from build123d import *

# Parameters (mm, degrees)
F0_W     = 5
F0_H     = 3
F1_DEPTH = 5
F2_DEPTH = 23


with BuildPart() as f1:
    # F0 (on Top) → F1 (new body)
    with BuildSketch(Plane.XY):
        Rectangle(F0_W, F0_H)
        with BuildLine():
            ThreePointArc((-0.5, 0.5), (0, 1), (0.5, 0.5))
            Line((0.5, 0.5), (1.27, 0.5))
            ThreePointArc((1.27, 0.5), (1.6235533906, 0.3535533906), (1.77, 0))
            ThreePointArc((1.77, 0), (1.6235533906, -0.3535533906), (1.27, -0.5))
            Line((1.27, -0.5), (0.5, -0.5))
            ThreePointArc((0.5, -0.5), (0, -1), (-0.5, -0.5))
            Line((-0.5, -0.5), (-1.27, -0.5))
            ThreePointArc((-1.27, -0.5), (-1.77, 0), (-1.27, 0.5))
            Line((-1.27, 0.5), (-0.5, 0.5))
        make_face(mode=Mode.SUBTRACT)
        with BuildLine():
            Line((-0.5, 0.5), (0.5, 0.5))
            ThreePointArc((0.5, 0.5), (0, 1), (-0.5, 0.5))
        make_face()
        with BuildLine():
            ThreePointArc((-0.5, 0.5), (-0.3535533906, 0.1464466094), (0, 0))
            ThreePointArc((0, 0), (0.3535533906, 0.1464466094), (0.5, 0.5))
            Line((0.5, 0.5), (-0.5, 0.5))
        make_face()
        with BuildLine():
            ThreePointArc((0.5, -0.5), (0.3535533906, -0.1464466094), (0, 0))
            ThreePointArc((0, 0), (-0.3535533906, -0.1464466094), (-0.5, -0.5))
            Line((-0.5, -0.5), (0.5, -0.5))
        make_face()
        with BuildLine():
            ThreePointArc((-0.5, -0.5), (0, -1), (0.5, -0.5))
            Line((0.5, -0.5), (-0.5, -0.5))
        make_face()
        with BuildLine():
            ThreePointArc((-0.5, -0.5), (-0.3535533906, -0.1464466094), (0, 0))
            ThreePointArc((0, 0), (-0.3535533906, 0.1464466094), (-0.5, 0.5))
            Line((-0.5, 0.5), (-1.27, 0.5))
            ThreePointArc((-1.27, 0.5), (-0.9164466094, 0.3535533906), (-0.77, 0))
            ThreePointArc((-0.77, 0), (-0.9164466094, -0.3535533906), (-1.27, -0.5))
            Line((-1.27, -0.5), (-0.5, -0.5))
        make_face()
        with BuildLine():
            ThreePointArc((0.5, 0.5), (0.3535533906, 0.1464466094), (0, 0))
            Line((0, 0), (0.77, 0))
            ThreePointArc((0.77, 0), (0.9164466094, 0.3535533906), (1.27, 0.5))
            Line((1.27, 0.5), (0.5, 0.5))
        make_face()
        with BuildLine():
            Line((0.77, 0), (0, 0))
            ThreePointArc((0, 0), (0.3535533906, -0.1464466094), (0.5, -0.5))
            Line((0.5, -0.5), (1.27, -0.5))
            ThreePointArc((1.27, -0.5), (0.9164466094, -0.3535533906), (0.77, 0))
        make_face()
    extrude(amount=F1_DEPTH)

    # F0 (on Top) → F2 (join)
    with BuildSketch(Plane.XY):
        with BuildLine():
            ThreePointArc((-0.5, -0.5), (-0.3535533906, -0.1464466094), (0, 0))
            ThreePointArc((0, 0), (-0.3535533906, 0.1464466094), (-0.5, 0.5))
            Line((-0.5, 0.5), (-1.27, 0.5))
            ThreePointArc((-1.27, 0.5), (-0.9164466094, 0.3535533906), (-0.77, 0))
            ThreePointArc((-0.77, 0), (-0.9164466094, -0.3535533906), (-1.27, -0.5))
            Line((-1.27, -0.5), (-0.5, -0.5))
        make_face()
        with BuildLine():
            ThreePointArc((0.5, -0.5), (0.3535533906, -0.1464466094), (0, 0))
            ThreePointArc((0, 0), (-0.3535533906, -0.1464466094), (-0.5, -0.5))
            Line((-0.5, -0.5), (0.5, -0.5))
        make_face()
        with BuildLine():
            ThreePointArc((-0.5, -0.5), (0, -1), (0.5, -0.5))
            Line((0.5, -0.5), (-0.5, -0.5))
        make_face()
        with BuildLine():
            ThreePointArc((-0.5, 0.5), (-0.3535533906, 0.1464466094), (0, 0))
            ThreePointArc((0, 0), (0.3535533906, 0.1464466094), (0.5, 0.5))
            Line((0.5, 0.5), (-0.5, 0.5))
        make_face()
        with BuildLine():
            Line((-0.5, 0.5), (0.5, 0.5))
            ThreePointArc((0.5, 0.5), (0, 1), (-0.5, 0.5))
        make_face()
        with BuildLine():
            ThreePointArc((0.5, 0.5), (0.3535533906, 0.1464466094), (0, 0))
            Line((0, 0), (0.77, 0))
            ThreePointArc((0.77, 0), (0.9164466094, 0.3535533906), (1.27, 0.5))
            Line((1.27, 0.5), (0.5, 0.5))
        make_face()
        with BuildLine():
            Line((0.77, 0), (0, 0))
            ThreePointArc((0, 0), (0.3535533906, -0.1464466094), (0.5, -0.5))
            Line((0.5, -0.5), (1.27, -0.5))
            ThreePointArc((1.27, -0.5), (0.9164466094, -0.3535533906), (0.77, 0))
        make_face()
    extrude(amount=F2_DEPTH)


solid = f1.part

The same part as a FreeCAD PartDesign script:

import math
import FreeCAD as App
import Part
import Sketcher
Q = App.Units.Quantity

doc = App.newDocument("Part")
params = doc.addObject("Spreadsheet::Sheet", "Params")
for row, (alias, value) in enumerate([
    ("sketch1_radius", "0.5 mm"),
    ("sketch1_width", "5 mm"),
    ("sketch1_height", "3 mm"),
    ("pad1_length", "5 mm"),
    ("sketch2_radius", "0.5 mm"),
    ("sketch2_width", "0.77 mm"),
    ("pad2_length", "23 mm"),
], start=1):
    params.set(f"A{row}", alias)
    params.set(f"B{row}", "=" + value)
    params.setAlias(f"B{row}", alias)

body = doc.addObject("PartDesign::Body", "Body")

# Sketch on XY plane
sketch1 = body.newObject("Sketcher::SketchObject", "Sketch")
sketch1.AttachmentSupport = (doc.getObject("XY_Plane"), [""])
sketch1.MapMode = "FlatFace"
sketch1.addGeometry([
    Part.LineSegment(App.Vector(-2.5, 1.5, 0), App.Vector(-2.5, -1.5, 0)),  # 0
    Part.LineSegment(App.Vector(-2.5, -1.5, 0), App.Vector(2.5, -1.5, 0)),  # 1
    Part.LineSegment(App.Vector(2.5, -1.5, 0), App.Vector(2.5, 1.5, 0)),  # 2
    Part.LineSegment(App.Vector(2.5, 1.5, 0), App.Vector(-2.5, 1.5, 0)),  # 3
    Part.ArcOfCircle(Part.Circle(App.Vector(-1.3, 0, 0), App.Vector(0, 0, 1), 0.5), math.radians(90), math.radians(270)),  # 4
    Part.ArcOfCircle(Part.Circle(App.Vector(-1.3, 0, 0), App.Vector(0, 0, 1), 0.5), math.radians(0), math.radians(90)),  # 5
    Part.ArcOfCircle(Part.Circle(App.Vector(-1.3, 0, 0), App.Vector(0, 0, 1), 0.5), math.radians(-90), math.radians(0)),  # 6
    Part.ArcOfCircle(Part.Circle(App.Vector(1.3, 0, 0), App.Vector(0, 0, 1), 0.5), math.radians(90), math.radians(180)),  # 7
    Part.ArcOfCircle(Part.Circle(App.Vector(1.3, 0, 0), App.Vector(0, 0, 1), 0.5), math.radians(0), math.radians(90)),  # 8
    Part.ArcOfCircle(Part.Circle(App.Vector(1.3, 0, 0), App.Vector(0, 0, 1), 0.5), math.radians(-90), math.radians(0)),  # 9
    Part.ArcOfCircle(Part.Circle(App.Vector(1.3, 0, 0), App.Vector(0, 0, 1), 0.5), math.radians(180), math.radians(270)),  # 10
], False)
sketch1.addConstraint([
    Sketcher.Constraint("Coincident", 0, 2, 1, 1),
    Sketcher.Constraint("Coincident", 1, 2, 2, 1),
    Sketcher.Constraint("Coincident", 2, 2, 3, 1),
    Sketcher.Constraint("Coincident", 3, 2, 0, 1),
    Sketcher.Constraint("Tangent", 4, 1, 5, 2),
    Sketcher.Constraint("Tangent", 5, 1, 6, 2),
    Sketcher.Constraint("Tangent", 6, 1, 4, 2),
    Sketcher.Constraint("Tangent", 7, 1, 8, 2),
    Sketcher.Constraint("Tangent", 8, 1, 9, 2),
    Sketcher.Constraint("Tangent", 9, 1, 10, 2),
    Sketcher.Constraint("Tangent", 10, 1, 7, 2),
    Sketcher.Constraint("Vertical", 0),
    Sketcher.Constraint("Horizontal", 1),
    Sketcher.Constraint("Vertical", 2),
    Sketcher.Constraint("Horizontal", 3),
    Sketcher.Constraint("Equal", 6, 7),
    Sketcher.Constraint("Equal", 7, 8),
    Sketcher.Constraint("Symmetric", 4, 3, 7, 3, -1, 1),
    Sketcher.Constraint("Symmetric", 0, 2, 2, 2, -1, 1),
    Sketcher.Constraint("Symmetric", 4, 1, 7, 1, -2),
    Sketcher.Constraint("PointOnObject", 5, 1, -1),
    Sketcher.Constraint("PointOnObject", 8, 1, -1),
    Sketcher.Constraint("PointOnObject", 10, 1, -1),
    Sketcher.Constraint("Vertical", 6, 3, 4, 1),
    Sketcher.Constraint("Vertical", 4, 1, 6, 1),
    Sketcher.Constraint("Vertical", 7, 1, 9, 1),
    Sketcher.Constraint("Radius", 4, Q("0.5 mm")),
    Sketcher.Constraint("DistanceX", 1, 1, 1, 2, Q("5 mm")),
    Sketcher.Constraint("DistanceY", 0, 2, 0, 1, Q("3 mm")),
    Sketcher.Constraint("DistanceX", 4, 3, -1, 1, Q("1.27 mm")),
])
sketch1.setExpression("Constraints[26]", "Params.sketch1_radius")
sketch1.setExpression("Constraints[27]", "Params.sketch1_width")
sketch1.setExpression("Constraints[28]", "Params.sketch1_height")
pad1 = body.newObject("PartDesign::Pad", "Pad")
pad1.Profile = sketch1
pad1.setExpression("Length", "Params.pad1_length")

# Sketch on XY plane
sketch2 = body.newObject("Sketcher::SketchObject", "Sketch001")
sketch2.AttachmentSupport = (doc.getObject("XY_Plane"), [""])
sketch2.MapMode = "FlatFace"
sketch2.addGeometry([
    Part.ArcOfCircle(Part.Circle(App.Vector(0, 0.5, 0), App.Vector(0, 0, 1), 0.5), math.radians(0), math.radians(180)),  # 0
    Part.LineSegment(App.Vector(-0.5, 0.5, 0), App.Vector(-1.3, 0.5, 0)),  # 1
    Part.ArcOfCircle(Part.Circle(App.Vector(-1.3, 0, 0), App.Vector(0, 0, 1), 0.5), math.radians(0), math.radians(90)),  # 2
    Part.ArcOfCircle(Part.Circle(App.Vector(-1.3, 0, 0), App.Vector(0, 0, 1), 0.5), math.radians(-90), math.radians(0)),  # 3
    Part.LineSegment(App.Vector(-1.3, -0.5, 0), App.Vector(-0.5, -0.5, 0)),  # 4
    Part.ArcOfCircle(Part.Circle(App.Vector(0, -0.5, 0), App.Vector(0, 0, 1), 0.5), math.radians(180), math.radians(360)),  # 5
    Part.LineSegment(App.Vector(0.5, -0.5, 0), App.Vector(1.3, -0.5, 0)),  # 6
    Part.ArcOfCircle(Part.Circle(App.Vector(1.3, 0, 0), App.Vector(0, 0, 1), 0.5), math.radians(180), math.radians(270)),  # 7
    Part.ArcOfCircle(Part.Circle(App.Vector(1.3, 0, 0), App.Vector(0, 0, 1), 0.5), math.radians(90), math.radians(180)),  # 8
    Part.LineSegment(App.Vector(1.3, 0.5, 0), App.Vector(0.5, 0.5, 0)),  # 9
], False)
sketch2.addConstraint([
    Sketcher.Constraint("Coincident", 0, 2, 1, 1),
    Sketcher.Constraint("Tangent", 1, 2, 2, 2),
    Sketcher.Constraint("Tangent", 2, 1, 3, 2),
    Sketcher.Constraint("Tangent", 3, 1, 4, 1),
    Sketcher.Constraint("Coincident", 4, 2, 5, 1),
    Sketcher.Constraint("Coincident", 5, 2, 6, 1),
    Sketcher.Constraint("Tangent", 6, 2, 7, 2),
    Sketcher.Constraint("Tangent", 7, 1, 8, 2),
    Sketcher.Constraint("Tangent", 8, 1, 9, 1),
    Sketcher.Constraint("Coincident", 9, 2, 0, 1),
    Sketcher.Constraint("Horizontal", 1),
    Sketcher.Constraint("Horizontal", 4),
    Sketcher.Constraint("Horizontal", 6),
    Sketcher.Constraint("Horizontal", 9),
    Sketcher.Constraint("Equal", 0, 2),
    Sketcher.Constraint("Equal", 2, 3),
    Sketcher.Constraint("Equal", 3, 5),
    Sketcher.Constraint("Equal", 5, 7),
    Sketcher.Constraint("Equal", 7, 8),
    Sketcher.Constraint("Symmetric", 0, 3, 5, 3, -1, 1),
    Sketcher.Constraint("Symmetric", 2, 3, 7, 3, -1, 1),
    Sketcher.Constraint("Symmetric", 4, 2, 5, 2, -2),
    Sketcher.Constraint("PointOnObject", 2, 1, -1),
    Sketcher.Constraint("PointOnObject", 7, 1, -1),
    Sketcher.Constraint("Horizontal", 5, 3, 3, 1),
    Sketcher.Constraint("Radius", 0, Q("0.5 mm")),
    Sketcher.Constraint("DistanceX", 1, 2, 1, 1, Q("0.77 mm")),
])
sketch2.setExpression("Constraints[25]", "Params.sketch2_radius")
sketch2.setExpression("Constraints[26]", "Params.sketch2_width")
pad2 = body.newObject("PartDesign::Pad", "Pad001")
pad2.Profile = sketch2
pad2.setExpression("Length", "Params.pad2_length")

doc.recompute()
